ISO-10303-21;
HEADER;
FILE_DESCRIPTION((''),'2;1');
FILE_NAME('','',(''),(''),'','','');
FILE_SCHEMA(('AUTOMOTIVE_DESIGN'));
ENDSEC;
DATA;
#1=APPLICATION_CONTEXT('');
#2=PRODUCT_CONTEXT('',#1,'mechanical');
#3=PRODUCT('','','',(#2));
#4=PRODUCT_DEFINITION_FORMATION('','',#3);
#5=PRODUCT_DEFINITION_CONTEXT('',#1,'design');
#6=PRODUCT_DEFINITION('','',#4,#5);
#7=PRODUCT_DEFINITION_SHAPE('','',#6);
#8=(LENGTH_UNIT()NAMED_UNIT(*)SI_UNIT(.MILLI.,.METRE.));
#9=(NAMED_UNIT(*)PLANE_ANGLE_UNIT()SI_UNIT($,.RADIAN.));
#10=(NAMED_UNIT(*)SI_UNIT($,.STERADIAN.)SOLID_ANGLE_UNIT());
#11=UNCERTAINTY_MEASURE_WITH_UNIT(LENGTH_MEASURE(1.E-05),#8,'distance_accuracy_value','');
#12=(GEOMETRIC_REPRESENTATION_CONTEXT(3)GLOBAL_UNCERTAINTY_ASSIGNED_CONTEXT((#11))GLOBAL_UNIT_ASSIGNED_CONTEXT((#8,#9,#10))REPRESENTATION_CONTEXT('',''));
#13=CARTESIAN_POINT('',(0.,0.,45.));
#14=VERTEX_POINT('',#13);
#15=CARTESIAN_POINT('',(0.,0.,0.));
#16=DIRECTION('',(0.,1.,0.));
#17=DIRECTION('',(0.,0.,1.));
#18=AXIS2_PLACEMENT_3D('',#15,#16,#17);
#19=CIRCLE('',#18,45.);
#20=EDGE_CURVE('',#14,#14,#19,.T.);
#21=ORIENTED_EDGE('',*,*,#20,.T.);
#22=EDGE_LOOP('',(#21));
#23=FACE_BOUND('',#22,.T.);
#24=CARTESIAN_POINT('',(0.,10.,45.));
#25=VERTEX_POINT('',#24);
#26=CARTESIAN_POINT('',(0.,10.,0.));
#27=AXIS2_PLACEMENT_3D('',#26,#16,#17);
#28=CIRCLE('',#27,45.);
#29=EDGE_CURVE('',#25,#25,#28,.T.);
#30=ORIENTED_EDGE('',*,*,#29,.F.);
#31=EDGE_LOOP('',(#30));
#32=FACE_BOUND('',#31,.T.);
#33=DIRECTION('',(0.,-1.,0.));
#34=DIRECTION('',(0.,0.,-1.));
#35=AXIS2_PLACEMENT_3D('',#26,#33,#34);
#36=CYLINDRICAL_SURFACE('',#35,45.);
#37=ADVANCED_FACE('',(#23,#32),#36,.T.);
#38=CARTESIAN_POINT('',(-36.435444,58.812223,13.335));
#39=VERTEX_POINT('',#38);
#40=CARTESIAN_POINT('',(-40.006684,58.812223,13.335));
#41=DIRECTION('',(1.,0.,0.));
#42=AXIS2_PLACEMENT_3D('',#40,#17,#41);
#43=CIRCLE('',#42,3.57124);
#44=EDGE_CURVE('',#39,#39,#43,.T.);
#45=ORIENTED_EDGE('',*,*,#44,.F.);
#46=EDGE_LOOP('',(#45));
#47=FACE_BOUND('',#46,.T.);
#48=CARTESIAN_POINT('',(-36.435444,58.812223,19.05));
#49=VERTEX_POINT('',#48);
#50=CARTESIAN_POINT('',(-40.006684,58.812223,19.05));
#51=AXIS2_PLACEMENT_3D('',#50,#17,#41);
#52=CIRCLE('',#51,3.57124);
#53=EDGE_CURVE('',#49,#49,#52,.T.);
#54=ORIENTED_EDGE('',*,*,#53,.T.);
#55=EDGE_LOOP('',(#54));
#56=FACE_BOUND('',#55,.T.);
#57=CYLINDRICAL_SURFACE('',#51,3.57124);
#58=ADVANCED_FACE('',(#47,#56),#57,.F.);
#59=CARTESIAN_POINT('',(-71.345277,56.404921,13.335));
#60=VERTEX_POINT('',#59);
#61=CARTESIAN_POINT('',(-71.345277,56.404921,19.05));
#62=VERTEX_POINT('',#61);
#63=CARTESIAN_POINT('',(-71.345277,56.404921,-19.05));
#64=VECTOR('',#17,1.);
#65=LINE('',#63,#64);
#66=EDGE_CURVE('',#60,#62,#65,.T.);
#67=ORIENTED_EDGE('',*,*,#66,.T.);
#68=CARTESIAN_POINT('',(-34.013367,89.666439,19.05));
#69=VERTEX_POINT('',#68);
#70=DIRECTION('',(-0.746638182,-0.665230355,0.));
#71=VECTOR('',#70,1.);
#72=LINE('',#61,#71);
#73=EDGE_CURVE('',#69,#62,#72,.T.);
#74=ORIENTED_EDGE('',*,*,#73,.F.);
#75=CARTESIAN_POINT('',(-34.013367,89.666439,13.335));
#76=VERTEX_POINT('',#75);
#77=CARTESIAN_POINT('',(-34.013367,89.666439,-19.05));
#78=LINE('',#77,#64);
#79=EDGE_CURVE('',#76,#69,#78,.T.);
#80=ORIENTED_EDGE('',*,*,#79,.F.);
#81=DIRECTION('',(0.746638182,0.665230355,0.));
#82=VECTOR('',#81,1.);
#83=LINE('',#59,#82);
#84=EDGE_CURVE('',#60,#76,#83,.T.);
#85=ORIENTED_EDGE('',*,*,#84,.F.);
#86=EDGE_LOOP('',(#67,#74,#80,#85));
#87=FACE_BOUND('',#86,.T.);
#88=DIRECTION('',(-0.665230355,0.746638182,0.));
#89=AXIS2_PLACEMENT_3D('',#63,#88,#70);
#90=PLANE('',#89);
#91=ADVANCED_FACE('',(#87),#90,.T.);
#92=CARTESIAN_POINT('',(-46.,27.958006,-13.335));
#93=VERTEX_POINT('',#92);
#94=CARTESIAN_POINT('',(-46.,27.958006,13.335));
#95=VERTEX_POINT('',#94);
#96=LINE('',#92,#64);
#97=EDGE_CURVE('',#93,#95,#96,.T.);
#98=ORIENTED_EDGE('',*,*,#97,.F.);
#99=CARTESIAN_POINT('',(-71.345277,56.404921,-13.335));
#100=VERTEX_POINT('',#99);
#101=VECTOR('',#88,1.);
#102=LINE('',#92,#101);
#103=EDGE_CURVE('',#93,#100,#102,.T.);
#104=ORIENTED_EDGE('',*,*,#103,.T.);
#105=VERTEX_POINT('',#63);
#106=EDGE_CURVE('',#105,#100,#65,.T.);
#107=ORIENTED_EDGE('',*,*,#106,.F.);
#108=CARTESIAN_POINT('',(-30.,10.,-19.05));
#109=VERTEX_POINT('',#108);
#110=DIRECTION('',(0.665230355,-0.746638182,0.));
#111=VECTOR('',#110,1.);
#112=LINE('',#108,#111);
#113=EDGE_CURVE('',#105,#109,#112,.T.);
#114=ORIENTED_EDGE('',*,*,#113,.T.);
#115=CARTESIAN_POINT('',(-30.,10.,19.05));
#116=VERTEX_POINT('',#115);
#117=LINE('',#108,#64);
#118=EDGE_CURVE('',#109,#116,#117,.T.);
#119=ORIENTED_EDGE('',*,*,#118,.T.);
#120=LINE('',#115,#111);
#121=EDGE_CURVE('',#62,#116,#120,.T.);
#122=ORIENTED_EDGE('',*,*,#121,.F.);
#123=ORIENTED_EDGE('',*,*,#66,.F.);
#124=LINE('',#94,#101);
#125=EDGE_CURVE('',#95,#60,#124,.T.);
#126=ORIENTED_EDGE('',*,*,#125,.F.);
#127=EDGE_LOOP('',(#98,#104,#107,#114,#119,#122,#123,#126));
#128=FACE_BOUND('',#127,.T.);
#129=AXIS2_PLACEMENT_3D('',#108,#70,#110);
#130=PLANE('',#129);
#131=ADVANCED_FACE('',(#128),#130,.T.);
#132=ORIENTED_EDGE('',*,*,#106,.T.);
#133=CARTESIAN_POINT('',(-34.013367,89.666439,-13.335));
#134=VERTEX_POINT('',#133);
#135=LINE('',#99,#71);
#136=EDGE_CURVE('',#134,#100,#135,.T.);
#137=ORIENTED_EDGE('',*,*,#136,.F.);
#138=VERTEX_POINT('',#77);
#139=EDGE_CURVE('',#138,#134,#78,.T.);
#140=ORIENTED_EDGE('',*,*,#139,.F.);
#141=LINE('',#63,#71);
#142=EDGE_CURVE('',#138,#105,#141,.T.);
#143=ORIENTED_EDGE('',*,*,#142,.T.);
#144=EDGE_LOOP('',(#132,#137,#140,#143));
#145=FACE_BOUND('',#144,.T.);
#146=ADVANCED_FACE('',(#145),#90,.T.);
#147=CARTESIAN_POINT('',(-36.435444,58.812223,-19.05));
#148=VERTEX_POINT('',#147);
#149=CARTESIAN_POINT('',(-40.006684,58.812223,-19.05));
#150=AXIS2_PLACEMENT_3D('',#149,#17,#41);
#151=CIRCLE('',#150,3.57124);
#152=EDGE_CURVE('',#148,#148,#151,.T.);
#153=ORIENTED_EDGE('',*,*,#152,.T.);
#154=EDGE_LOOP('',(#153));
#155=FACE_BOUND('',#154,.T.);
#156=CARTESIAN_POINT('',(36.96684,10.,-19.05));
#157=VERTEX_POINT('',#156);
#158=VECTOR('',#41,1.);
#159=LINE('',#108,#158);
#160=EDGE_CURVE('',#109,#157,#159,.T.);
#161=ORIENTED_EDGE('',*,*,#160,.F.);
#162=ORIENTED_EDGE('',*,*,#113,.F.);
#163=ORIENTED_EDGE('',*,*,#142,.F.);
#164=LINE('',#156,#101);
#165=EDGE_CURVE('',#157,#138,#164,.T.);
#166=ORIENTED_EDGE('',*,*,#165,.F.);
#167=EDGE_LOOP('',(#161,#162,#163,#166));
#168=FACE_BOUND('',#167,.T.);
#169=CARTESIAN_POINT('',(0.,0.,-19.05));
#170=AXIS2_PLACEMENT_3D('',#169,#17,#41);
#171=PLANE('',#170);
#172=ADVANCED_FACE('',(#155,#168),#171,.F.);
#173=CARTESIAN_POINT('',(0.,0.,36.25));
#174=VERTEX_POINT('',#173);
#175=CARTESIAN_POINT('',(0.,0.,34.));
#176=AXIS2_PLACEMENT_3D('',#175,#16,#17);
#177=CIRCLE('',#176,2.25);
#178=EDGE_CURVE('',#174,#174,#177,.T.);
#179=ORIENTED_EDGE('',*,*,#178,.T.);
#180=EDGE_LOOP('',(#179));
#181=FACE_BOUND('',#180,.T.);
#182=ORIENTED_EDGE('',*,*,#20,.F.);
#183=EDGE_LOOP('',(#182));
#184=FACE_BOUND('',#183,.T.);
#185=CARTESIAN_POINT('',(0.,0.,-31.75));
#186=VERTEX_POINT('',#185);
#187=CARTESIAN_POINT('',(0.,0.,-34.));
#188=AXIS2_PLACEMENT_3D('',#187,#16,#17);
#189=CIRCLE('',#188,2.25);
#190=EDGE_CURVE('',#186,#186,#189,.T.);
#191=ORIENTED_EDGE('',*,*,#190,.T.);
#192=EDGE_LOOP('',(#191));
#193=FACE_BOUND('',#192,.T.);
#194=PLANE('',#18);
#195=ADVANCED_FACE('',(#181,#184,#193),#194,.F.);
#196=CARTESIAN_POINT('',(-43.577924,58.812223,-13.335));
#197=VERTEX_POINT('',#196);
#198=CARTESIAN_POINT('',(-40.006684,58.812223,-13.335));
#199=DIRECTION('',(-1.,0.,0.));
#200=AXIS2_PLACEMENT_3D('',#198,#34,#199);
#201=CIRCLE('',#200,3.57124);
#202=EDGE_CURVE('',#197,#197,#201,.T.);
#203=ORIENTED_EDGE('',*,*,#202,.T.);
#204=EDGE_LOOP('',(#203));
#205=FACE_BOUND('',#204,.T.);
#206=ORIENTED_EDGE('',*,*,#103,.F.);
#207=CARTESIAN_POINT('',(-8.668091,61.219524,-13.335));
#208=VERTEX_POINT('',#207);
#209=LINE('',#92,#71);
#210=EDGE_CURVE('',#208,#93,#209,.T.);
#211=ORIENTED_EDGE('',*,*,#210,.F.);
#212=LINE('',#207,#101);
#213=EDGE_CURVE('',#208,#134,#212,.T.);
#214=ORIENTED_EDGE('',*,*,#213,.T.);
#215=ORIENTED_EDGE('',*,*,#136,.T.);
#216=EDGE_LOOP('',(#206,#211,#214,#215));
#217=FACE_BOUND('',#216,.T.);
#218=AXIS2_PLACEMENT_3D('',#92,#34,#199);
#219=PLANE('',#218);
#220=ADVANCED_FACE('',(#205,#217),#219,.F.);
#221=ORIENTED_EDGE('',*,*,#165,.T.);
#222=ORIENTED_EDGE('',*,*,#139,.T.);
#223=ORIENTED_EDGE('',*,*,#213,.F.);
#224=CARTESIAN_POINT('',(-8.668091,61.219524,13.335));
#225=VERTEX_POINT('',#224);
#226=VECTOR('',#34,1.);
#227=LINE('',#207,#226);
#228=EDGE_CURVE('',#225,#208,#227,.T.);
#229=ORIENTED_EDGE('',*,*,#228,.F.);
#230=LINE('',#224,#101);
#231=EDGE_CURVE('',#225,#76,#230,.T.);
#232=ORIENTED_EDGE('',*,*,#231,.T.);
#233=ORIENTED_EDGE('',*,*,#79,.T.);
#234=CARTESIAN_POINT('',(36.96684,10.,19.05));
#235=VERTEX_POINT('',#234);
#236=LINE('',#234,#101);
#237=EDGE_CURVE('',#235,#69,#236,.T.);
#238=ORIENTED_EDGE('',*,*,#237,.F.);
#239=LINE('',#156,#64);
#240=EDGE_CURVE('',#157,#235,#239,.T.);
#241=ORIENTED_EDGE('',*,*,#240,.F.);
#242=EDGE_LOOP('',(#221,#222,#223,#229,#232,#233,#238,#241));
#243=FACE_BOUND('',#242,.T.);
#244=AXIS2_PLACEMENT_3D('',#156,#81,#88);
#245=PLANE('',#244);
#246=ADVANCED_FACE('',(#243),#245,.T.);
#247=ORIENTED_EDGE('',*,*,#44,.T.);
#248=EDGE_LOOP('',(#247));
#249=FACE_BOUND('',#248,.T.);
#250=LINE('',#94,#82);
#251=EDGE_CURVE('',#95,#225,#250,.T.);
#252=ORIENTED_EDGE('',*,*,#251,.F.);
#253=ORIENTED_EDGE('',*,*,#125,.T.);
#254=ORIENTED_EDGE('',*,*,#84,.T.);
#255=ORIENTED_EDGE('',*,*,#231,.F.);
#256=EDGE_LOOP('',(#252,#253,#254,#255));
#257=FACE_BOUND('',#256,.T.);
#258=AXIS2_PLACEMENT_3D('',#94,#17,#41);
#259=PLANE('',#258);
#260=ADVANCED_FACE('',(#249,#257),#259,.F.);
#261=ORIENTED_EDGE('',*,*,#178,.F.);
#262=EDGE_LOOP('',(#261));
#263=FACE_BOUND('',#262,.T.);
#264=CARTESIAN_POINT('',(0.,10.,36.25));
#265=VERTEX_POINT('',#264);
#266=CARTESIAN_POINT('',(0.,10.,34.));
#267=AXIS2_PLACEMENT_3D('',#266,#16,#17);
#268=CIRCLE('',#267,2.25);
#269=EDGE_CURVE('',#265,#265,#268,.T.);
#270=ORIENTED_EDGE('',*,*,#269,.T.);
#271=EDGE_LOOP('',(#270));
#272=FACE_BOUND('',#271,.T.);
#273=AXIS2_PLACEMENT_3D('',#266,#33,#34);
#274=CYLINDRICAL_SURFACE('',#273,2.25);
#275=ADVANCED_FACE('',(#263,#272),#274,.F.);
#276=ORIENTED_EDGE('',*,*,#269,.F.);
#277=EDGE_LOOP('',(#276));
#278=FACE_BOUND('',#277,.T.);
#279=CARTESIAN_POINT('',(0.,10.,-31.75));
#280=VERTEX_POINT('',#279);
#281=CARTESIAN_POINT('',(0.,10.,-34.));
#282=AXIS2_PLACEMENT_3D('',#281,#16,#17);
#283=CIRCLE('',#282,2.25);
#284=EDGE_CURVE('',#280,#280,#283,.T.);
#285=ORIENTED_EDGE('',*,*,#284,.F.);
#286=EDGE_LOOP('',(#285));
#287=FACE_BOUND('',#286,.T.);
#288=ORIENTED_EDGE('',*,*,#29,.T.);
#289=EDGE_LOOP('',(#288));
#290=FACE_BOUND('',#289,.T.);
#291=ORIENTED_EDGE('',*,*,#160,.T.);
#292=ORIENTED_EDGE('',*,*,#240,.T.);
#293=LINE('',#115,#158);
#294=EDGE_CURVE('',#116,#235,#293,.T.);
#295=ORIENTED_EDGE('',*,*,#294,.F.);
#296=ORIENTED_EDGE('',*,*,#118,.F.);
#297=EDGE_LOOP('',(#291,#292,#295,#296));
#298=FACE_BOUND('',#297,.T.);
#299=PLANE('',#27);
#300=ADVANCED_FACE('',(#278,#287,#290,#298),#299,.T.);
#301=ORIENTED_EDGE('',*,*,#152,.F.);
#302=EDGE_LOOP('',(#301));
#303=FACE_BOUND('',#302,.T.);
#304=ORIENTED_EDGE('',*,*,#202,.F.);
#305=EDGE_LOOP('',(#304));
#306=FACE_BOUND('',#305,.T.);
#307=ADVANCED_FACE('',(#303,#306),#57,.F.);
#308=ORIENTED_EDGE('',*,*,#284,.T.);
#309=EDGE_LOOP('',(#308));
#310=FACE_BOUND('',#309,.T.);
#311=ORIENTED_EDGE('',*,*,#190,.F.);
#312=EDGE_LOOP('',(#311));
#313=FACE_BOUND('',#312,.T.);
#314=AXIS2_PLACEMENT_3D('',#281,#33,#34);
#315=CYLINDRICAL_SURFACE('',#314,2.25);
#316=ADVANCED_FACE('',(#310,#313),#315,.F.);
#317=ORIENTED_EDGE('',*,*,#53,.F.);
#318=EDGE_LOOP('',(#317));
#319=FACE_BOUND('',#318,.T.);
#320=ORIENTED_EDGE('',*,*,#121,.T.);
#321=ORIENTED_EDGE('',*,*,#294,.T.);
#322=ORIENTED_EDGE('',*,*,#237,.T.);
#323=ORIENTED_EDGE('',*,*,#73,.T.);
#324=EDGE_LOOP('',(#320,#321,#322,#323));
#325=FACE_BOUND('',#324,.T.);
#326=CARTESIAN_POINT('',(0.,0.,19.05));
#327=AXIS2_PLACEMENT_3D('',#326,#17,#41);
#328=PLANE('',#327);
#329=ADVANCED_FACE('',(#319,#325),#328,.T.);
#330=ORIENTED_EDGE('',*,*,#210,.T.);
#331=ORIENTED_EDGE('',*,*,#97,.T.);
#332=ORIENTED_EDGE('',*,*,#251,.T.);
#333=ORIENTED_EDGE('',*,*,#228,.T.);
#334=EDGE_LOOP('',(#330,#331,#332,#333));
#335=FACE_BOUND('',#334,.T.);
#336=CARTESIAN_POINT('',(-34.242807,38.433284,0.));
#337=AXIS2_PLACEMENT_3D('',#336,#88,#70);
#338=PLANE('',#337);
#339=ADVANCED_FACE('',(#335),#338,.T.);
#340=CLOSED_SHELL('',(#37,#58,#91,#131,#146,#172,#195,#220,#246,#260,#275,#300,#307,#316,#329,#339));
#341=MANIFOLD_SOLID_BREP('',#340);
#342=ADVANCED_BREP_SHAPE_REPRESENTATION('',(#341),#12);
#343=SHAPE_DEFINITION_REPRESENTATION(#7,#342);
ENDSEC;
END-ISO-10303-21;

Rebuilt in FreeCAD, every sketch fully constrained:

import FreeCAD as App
import Part
import Sketcher
Q = App.Units.Quantity


def add_polygon(sketch, points):
    """Adds a closed chain of lines whose ends are joined by coincident constraints."""
    first, n = sketch.GeometryCount, len(points)
    for a, b in zip(points, points[1:] + points[:1]):
        sketch.addGeometry(Part.LineSegment(App.Vector(*a, 0), App.Vector(*b, 0)), False)
    for i in range(n):
        sketch.addConstraint(Sketcher.Constraint("Coincident", first + i, 2, first + (i + 1) % n, 1))

doc = App.newDocument("Part")
params = doc.addObject("Spreadsheet::Sheet", "Params")
for row, (alias, value) in enumerate([
    ("sketch1_diameter", "90 mm"),
    ("sketch1_diameter2", "4.5 mm"),
    ("pad1_length", "10 mm"),
    ("sketch2_length", "50 mm"),
    ("pad2_length", "19.05 mm"),
    ("pad2_length2", "19.05 mm"),
    ("sketch3_width", "50 mm"),
    ("sketch3_height", "26.67 mm"),
    ("pocket1_length", "38.1 mm"),
    ("hole_diameter", "7.14248 mm"),
], start=1):
    params.set(f"A{row}", alias)
    params.set(f"B{row}", "=" + value)
    params.setAlias(f"B{row}", alias)

body = doc.addObject("PartDesign::Body", "Body")

sketch1 = body.newObject("Sketcher::SketchObject", "Sketch")
sketch1.AttachmentSupport = (doc.getObject("XZ_Plane"), [""])
sketch1.MapMode = "FlatFace"
sketch1.addGeometry(Part.Circle(App.Vector(0, 0, 0), App.Vector(0, 0, 1), 45), False)
sketch1.addGeometry(Part.Circle(App.Vector(0, -34, 0), App.Vector(0, 0, 1), 2.2), False)
sketch1.addGeometry(Part.Circle(App.Vector(0, 34, 0), App.Vector(0, 0, 1), 2.2), False)
sketch1.addConstraint(Sketcher.Constraint("Coincident", 0, 3, -1, 1))
sketch1.addConstraint(Sketcher.Constraint("Equal", 1, 2))
sketch1.addConstraint(Sketcher.Constraint("Symmetric", 1, 3, 2, 3, -1, 1))
sketch1.addConstraint(Sketcher.Constraint("PointOnObject", 1, 3, -2))
sketch1.addConstraint(Sketcher.Constraint("Diameter", 0, 90.0))
sketch1.addConstraint(Sketcher.Constraint("Diameter", 1, 4.5))
sketch1.addConstraint(Sketcher.Constraint("DistanceY", 1, 3, -1, 1, 34.0))
sketch1.setExpression("Constraints[4]", "Params.sketch1_diameter")
sketch1.setExpression("Constraints[5]", "Params.sketch1_diameter2")
pad1 = body.newObject("PartDesign::Pad", "Pad")
pad1.Profile = sketch1
pad1.setExpression("Length", "Params.pad1_length")
pad1.Reversed = True

sketch2 = body.newObject("Sketcher::SketchObject", "Sketch001")
sketch2.AttachmentSupport = (doc.getObject("XY_Plane"), [""])
sketch2.MapMode = "FlatFace"
add_polygon(sketch2, [(37, 10), (-34, 90), (-71, 56), (-30, 10)])
sketch2.addConstraint(Sketcher.Constraint("Horizontal", 3))
sketch2.addConstraint(Sketcher.Constraint("Perpendicular", 0, 1))
sketch2.addConstraint(Sketcher.Constraint("Perpendicular", 1, 2))
sketch2.addConstraint(Sketcher.Constraint("Distance", 1, 50.0))
sketch2.addConstraint(Sketcher.Constraint("DistanceX", 2, 2, -1, 1, 30.0))
sketch2.addConstraint(Sketcher.Constraint("DistanceY", -1, 1, 2, 2, 10.0))
sketch2.addConstraint(Sketcher.Constraint("Angle", 0, Q("131.7 deg")))
sketch2.addConstraint(Sketcher.Constraint("Distance", 2, 62.151819))
sketch2.setExpression("Constraints[7]", "Params.sketch2_length")
pad2 = body.newObject("PartDesign::Pad", "Pad001")
pad2.Profile = sketch2
pad2.Type = "TwoLengths"
pad2.setExpression("Length", "Params.pad2_length")
pad2.setExpression("Length2", "Params.pad2_length2")

sketch3 = body.newObject("Sketcher::SketchObject", "Sketch002")
sketch3.Placement = App.Placement(App.Vector(-59.588083, 66.880198, 0), App.Rotation(App.Vector(0.746638182, 0.665230355, 0), App.Vector(0, 0, -1), App.Vector(-0.665230355, 0.746638182, 0), "ZXY"))
add_polygon(sketch3, [(-16, 13), (-16, -13), (34, -13), (34, 13)])
sketch3.addConstraint(Sketcher.Constraint("Vertical", 0))
sketch3.addConstraint(Sketcher.Constraint("Horizontal", 1))
sketch3.addConstraint(Sketcher.Constraint("Vertical", 2))
sketch3.addConstraint(Sketcher.Constraint("Horizontal", 3))
sketch3.addConstraint(Sketcher.Constraint("DistanceX", 1, 1, 1, 2, 50.0))
sketch3.addConstraint(Sketcher.Constraint("DistanceY", 0, 2, 0, 1, 26.67))
sketch3.addConstraint(Sketcher.Constraint("DistanceY", 0, 2, -1, 1, 13.335))
sketch3.addConstraint(Sketcher.Constraint("DistanceX", 0, 2, -1, 1, 15.746842))
sketch3.setExpression("Constraints[8]", "Params.sketch3_width")
sketch3.setExpression("Constraints[9]", "Params.sketch3_height")
pocket1 = body.newObject("PartDesign::Pocket", "Pocket")
pocket1.Profile = sketch3
pocket1.setExpression("Length", "Params.pocket1_length")

sketch4 = body.newObject("Sketcher::SketchObject", "Sketch003")
sketch4.AttachmentSupport = (doc.getObject("XY_Plane"), [""])
sketch4.MapMode = "FlatFace"
sketch4.AttachmentOffset = App.Placement(App.Vector(0, 0, 19.05), App.Rotation())
sketch4.addGeometry(Part.Circle(App.Vector(-40, 58.8, 0), App.Vector(0, 0, 1), 3.6), False)
sketch4.addConstraint(Sketcher.Constraint("Diameter", 0, 7.14248))
sketch4.addConstraint(Sketcher.Constraint("DistanceX", 0, 3, -1, 1, 40.006684))
sketch4.addConstraint(Sketcher.Constraint("DistanceY", -1, 1, 0, 3, 58.812223))
doc.recompute()
hole = body.newObject("PartDesign::Hole", "Hole")
hole.Profile = sketch4
hole.ThreadType = "None"
hole.setExpression("Diameter", "Params.hole_diameter")
hole.DepthType = "ThroughAll"

doc.recompute()
